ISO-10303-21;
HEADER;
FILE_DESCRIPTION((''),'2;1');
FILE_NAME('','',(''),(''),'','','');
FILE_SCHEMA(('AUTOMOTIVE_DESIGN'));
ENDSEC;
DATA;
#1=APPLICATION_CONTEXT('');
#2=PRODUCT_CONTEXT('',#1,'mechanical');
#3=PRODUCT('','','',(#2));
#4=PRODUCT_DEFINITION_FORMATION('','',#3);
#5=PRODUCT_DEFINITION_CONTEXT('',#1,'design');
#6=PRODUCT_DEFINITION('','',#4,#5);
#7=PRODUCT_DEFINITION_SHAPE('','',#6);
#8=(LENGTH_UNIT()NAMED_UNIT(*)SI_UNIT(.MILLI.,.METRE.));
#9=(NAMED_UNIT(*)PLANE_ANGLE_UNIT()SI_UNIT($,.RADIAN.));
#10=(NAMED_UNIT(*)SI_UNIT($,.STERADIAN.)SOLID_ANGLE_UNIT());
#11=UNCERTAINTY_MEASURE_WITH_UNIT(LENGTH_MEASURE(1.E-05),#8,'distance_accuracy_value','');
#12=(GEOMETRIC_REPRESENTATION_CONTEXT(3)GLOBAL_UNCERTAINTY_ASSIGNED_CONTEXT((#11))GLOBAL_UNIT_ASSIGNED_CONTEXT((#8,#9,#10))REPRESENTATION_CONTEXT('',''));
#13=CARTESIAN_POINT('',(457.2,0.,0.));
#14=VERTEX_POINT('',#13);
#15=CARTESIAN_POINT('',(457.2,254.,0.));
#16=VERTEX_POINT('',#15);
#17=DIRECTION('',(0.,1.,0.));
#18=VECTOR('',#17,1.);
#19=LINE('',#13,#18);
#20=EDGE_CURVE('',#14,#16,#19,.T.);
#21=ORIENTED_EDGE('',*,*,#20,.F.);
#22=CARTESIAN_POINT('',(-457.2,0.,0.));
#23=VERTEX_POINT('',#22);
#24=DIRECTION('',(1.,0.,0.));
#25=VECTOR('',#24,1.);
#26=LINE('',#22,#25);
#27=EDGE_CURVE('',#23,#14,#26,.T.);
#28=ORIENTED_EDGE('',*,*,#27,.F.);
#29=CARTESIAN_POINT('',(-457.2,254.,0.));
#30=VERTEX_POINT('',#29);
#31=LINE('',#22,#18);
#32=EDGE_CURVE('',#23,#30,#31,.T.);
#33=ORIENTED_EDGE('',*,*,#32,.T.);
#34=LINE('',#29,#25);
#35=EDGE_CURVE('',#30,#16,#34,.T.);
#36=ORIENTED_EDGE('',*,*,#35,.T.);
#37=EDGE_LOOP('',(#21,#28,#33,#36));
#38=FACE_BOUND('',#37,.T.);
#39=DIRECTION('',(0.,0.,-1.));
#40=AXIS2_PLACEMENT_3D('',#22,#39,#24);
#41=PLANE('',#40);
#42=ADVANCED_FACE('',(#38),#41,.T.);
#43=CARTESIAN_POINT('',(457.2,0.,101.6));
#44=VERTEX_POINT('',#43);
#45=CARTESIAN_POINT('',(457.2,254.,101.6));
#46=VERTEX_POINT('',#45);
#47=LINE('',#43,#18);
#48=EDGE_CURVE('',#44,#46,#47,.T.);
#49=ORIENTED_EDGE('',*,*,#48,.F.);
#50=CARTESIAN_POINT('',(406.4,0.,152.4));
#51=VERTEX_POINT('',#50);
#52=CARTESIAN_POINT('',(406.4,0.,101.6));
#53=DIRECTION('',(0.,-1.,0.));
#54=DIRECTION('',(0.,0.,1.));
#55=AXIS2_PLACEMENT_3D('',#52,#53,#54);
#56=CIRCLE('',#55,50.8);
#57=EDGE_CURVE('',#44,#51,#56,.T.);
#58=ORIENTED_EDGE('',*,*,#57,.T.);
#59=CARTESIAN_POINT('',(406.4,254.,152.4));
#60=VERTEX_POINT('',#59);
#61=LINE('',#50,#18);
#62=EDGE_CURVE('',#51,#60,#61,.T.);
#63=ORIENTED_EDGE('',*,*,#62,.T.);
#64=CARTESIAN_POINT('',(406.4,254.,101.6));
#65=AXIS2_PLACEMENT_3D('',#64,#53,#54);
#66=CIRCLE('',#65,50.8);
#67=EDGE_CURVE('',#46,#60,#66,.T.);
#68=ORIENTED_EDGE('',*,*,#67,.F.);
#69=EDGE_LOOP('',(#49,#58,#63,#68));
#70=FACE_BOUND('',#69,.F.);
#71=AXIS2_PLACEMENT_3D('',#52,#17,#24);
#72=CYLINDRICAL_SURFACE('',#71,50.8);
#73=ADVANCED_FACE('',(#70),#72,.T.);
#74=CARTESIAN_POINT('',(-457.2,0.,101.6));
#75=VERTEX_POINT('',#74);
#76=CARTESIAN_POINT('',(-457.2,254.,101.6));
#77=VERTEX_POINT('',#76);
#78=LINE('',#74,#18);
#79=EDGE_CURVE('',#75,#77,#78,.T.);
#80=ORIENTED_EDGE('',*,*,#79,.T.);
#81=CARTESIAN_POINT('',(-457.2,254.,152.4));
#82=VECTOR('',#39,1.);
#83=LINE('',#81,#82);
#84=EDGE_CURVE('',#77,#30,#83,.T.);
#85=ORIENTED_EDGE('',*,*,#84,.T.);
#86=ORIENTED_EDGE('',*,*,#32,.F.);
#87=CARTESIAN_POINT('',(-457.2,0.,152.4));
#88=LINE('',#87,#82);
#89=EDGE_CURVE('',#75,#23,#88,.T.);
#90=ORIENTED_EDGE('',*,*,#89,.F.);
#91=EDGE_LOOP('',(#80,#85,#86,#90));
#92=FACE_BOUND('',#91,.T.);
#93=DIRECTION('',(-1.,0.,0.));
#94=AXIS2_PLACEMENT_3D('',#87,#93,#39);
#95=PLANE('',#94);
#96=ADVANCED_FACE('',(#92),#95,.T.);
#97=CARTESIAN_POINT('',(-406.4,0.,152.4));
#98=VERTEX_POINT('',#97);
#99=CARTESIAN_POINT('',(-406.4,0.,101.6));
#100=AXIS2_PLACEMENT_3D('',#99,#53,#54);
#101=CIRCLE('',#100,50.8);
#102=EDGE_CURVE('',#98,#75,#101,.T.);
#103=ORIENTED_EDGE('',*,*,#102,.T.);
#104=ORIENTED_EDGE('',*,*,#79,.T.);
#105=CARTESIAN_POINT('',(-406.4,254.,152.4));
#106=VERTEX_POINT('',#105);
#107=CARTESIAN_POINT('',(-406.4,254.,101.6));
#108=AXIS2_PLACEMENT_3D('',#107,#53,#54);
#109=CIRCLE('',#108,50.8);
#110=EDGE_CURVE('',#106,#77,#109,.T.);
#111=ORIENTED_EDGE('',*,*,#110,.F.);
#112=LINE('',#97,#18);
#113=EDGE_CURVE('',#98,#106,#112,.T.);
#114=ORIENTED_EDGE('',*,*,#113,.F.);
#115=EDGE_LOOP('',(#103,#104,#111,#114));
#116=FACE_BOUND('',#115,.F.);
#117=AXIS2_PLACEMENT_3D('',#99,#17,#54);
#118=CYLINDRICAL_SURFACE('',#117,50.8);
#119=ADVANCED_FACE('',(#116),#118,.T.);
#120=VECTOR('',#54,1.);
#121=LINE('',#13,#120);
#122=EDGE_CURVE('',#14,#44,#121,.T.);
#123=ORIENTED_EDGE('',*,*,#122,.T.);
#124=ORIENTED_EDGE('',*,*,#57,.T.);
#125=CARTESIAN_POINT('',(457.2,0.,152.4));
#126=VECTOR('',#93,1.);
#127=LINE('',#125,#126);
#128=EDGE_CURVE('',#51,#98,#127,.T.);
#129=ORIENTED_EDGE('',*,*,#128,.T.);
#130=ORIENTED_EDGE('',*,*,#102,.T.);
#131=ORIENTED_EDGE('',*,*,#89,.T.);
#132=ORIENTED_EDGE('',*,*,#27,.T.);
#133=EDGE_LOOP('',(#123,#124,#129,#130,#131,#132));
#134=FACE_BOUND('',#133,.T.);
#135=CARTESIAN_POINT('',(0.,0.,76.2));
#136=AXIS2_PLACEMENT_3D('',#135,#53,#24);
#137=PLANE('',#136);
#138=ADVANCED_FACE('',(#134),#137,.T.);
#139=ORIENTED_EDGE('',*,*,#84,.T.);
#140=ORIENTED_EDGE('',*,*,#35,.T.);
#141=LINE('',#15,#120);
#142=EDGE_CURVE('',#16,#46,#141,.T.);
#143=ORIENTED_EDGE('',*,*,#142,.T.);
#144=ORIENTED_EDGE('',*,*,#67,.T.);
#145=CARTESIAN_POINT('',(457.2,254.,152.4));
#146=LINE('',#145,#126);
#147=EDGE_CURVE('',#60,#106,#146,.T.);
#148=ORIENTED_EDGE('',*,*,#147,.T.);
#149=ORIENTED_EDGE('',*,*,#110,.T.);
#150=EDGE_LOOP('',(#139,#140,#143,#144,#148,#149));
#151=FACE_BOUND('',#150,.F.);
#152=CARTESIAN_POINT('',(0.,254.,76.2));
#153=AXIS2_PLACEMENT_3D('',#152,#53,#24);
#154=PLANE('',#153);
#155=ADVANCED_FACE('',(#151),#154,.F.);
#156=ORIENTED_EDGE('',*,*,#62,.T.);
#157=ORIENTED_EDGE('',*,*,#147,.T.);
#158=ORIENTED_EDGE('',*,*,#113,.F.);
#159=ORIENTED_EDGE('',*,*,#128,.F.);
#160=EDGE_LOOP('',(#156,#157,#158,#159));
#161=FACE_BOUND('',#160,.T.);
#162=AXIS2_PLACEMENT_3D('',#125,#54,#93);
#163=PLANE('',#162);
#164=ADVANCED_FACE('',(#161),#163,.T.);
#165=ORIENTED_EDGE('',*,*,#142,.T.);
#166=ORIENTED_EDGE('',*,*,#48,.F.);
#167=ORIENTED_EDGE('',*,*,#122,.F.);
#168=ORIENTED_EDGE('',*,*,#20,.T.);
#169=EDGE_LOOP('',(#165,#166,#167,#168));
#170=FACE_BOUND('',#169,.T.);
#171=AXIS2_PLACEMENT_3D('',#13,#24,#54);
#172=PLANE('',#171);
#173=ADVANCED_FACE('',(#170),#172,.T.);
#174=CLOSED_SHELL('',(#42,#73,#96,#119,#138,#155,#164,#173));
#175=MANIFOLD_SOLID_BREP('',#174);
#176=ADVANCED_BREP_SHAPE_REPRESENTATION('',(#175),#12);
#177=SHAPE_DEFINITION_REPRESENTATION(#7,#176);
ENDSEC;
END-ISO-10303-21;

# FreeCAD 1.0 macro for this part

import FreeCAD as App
import Part
import Sketcher
Q = App.Units.Quantity


def edges_at(feature, points):
    """Names of the edges that pass closest to the given points."""
    edges = feature.Shape.Edges
    near = lambda p: min(range(len(edges)), key=lambda i: edges[i].distToShape(Part.Vertex(*p))[0])
    return sorted({f"Edge{near(p) + 1}" for p in points})


def add_polygon(sketch, points):
    """Adds a closed chain of lines whose ends are joined by coincident constraints."""
    first, n = sketch.GeometryCount, len(points)
    for a, b in zip(points, points[1:] + points[:1]):
        sketch.addGeometry(Part.LineSegment(App.Vector(*a, 0), App.Vector(*b, 0)), False)
    for i in range(n):
        sketch.addConstraint(Sketcher.Constraint("Coincident", first + i, 2, first + (i + 1) % n, 1))

doc = App.newDocument("Part")
body = doc.addObject("PartDesign::Body", "Body")

sketch1 = body.newObject("Sketcher::SketchObject", "Sketch")
sketch1.AttachmentSupport = (doc.getObject("XZ_Plane"), [""])
sketch1.MapMode = "FlatFace"
add_polygon(sketch1, [(-457, 0), (457, 0), (457, 152), (-457, 152)])
sketch1.addConstraint([
    Sketcher.Constraint("Horizontal", 0),
    Sketcher.Constraint("Vertical", 1),
    Sketcher.Constraint("Horizontal", 2),
    Sketcher.Constraint("Vertical", 3),
    Sketcher.Constraint("Symmetric", 0, 2, 3, 2, -1, 1),
    Sketcher.Constraint("DistanceX", 0, 1, 0, 2, Q("36 in")),
    Sketcher.Constraint("DistanceY", 1, 1, 1, 2, Q("6 in")),
])
pad1 = body.newObject("PartDesign::Pad", "Pad")
pad1.Profile = sketch1
pad1.Length = Q("10 in")
pad1.Reversed = True
doc.recompute()

fillet = body.newObject("PartDesign::Fillet", "Fillet")
fillet.Base = (pad1, edges_at(pad1, [(-457.2, 127, 152.4), (457.2, 127, 152.4)]))
fillet.Radius = Q("2 in")

doc.recompute()
